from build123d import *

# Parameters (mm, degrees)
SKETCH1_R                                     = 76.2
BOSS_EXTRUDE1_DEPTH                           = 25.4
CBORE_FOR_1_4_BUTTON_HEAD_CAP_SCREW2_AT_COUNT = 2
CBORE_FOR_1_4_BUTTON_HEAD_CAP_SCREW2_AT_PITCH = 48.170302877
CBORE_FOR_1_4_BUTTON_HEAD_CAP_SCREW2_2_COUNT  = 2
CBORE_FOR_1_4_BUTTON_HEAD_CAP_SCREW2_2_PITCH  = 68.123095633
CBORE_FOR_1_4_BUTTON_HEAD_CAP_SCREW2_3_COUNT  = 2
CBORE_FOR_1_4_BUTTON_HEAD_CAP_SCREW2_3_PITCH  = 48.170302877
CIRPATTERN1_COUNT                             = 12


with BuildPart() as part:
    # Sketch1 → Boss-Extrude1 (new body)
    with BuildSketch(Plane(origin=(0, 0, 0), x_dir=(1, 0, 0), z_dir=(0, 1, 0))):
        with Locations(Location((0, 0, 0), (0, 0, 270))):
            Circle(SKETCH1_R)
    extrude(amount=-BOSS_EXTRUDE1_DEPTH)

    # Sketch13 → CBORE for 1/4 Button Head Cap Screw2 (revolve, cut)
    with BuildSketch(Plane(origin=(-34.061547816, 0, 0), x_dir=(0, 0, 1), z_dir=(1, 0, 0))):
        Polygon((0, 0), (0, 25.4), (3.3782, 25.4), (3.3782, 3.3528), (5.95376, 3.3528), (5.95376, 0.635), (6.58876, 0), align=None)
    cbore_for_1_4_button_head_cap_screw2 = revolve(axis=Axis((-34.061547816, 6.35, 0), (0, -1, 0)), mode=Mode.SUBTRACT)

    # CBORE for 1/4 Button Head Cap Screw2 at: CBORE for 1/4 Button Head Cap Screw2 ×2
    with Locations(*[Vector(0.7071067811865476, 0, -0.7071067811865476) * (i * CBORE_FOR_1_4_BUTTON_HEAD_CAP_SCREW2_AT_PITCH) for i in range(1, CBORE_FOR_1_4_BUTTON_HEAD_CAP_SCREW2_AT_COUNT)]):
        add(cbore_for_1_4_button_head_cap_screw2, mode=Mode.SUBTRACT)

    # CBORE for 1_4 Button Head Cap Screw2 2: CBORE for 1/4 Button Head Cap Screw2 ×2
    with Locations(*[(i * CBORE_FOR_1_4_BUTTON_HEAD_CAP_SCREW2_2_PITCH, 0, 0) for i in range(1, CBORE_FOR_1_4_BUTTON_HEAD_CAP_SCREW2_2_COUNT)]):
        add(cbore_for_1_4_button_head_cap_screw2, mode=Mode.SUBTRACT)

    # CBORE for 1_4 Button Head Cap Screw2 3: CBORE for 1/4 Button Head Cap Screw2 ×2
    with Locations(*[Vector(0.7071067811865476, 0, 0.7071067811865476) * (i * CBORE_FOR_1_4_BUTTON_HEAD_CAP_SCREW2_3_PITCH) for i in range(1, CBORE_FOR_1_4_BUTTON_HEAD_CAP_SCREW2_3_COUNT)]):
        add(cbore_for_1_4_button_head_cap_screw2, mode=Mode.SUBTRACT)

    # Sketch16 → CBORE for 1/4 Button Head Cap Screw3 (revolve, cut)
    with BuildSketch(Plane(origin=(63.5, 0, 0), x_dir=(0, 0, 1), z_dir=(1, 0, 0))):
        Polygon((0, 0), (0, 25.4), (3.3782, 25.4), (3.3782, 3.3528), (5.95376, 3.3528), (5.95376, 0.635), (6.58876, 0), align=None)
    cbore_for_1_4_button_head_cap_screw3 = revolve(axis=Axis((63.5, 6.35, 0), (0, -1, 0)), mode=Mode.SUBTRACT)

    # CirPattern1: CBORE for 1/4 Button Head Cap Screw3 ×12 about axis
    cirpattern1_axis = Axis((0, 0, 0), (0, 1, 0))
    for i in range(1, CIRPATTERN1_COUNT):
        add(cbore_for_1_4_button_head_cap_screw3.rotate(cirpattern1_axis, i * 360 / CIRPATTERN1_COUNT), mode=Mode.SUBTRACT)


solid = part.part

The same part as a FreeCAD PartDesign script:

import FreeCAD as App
import Part
import Sketcher
Q = App.Units.Quantity

doc = App.newDocument("Part")
body = doc.addObject("PartDesign::Body", "Body")

# Sketch on XZ plane
sketch1 = body.newObject("Sketcher::SketchObject", "Sketch")
sketch1.AttachmentSupport = (doc.getObject("XZ_Plane"), [""])
sketch1.MapMode = "FlatFace"
sketch1.addGeometry(Part.Circle(App.Vector(0, 0, 0), App.Vector(0, 0, 1), 76), False)
sketch1.addConstraint([
    Sketcher.Constraint("Coincident", 0, 3, -1, 1),
    Sketcher.Constraint("Diameter", 0, Q("6 in")),
])
pad1 = body.newObject("PartDesign::Pad", "Pad")
pad1.Profile = sketch1
pad1.Length = Q("1 in")

# Sketch on YZ plane
sketch2 = body.newObject("Sketcher::SketchObject", "Sketch001")
sketch2.AttachmentSupport = (doc.getObject("YZ_Plane"), [""])
sketch2.MapMode = "FlatFace"
sketch2.AttachmentOffset = App.Placement(App.Vector(0, 0, -34.061548), App.Rotation())
sketch2.addGeometry([
    Part.LineSegment(App.Vector(-25.4, 0, 0), App.Vector(0, 0, 0)),  # 0
    Part.LineSegment(App.Vector(0, 0, 0), App.Vector(0, 6.6, 0)),  # 1
    Part.LineSegment(App.Vector(0, 6.6, 0), App.Vector(-0.6, 6, 0)),  # 2
    Part.LineSegment(App.Vector(-0.6, 6, 0), App.Vector(-3.4, 6, 0)),  # 3
    Part.LineSegment(App.Vector(-3.4, 6, 0), App.Vector(-3.4, 3.4, 0)),  # 4
    Part.LineSegment(App.Vector(-3.4, 3.4, 0), App.Vector(-25.4, 3.4, 0)),  # 5
    Part.LineSegment(App.Vector(-25.4, 3.4, 0), App.Vector(-25.4, 0, 0)),  # 6
], False)
sketch2.addConstraint([
    Sketcher.Constraint("Coincident", 0, 2, 1, 1),
    Sketcher.Constraint("Coincident", 1, 2, 2, 1),
    Sketcher.Constraint("Coincident", 2, 2, 3, 1),
    Sketcher.Constraint("Coincident", 3, 2, 4, 1),
    Sketcher.Constraint("Coincident", 4, 2, 5, 1),
    Sketcher.Constraint("Coincident", 5, 2, 6, 1),
    Sketcher.Constraint("Coincident", 6, 2, 0, 1),
    Sketcher.Constraint("Horizontal", 0),
    Sketcher.Constraint("Vertical", 1),
    Sketcher.Constraint("Horizontal", 3),
    Sketcher.Constraint("Vertical", 4),
    Sketcher.Constraint("Horizontal", 5),
    Sketcher.Constraint("Vertical", 6),
    Sketcher.Constraint("Coincident", 0, 2, -1, 1),
    Sketcher.Constraint("DistanceX", 0, 1, 0, 2, Q("1 in")),
    Sketcher.Constraint("Angle", 2, Q("-135 deg")),
    Sketcher.Constraint("DistanceX", 3, 2, 3, 1, Q("0.107 in")),
    Sketcher.Constraint("DistanceX", 5, 2, 5, 1, Q("0.868 in")),
    Sketcher.Constraint("DistanceY", 6, 2, 6, 1, Q("0.133 in")),
    Sketcher.Constraint("DistanceY", 1, 1, 1, 2, Q("0.2594 in")),
])
groove = body.newObject("PartDesign::Groove", "Groove")
groove.Profile = sketch2
groove.ReferenceAxis = (sketch2, ["H_Axis"])
groove.Angle = 360
doc.recompute()

datumline = body.newObject("PartDesign::Line", "DatumLine")
datumline.Placement = App.Placement(App.Vector(0, 0, 0), App.Rotation(App.Vector(0, 0, 1), App.Vector(0.707106781, 0, -0.707106781)))
linearpattern = body.newObject("PartDesign::LinearPattern", "LinearPattern")
linearpattern.Originals = [groove]
linearpattern.Direction = (datumline, [""])
linearpattern.Mode = "offset"
linearpattern.Offset = 48.170303
linearpattern.Occurrences = 2
body.Tip = linearpattern
doc.recompute()

linearpattern2 = body.newObject("PartDesign::LinearPattern", "LinearPattern001")
linearpattern2.Originals = [groove]
linearpattern2.Direction = (doc.getObject("X_Axis"), [""])
linearpattern2.Mode = "offset"
linearpattern2.Offset = 68.123096
linearpattern2.Occurrences = 2
body.Tip = linearpattern2
doc.recompute()

datumline2 = body.newObject("PartDesign::Line", "DatumLine001")
datumline2.Placement = App.Placement(App.Vector(0, 0, 0), App.Rotation(App.Vector(0, 0, 1), App.Vector(0.707106781, 0, 0.707106781)))
linearpattern3 = body.newObject("PartDesign::LinearPattern", "LinearPattern002")
linearpattern3.Originals = [groove]
linearpattern3.Direction = (datumline2, [""])
linearpattern3.Mode = "offset"
linearpattern3.Offset = 48.170303
linearpattern3.Occurrences = 2
body.Tip = linearpattern3

# Sketch on YZ plane
sketch3 = body.newObject("Sketcher::SketchObject", "Sketch002")
sketch3.AttachmentSupport = (doc.getObject("YZ_Plane"), [""])
sketch3.MapMode = "FlatFace"
sketch3.AttachmentOffset = App.Placement(App.Vector(0, 0, 2.5 * 25.4), App.Rotation())
sketch3.addGeometry([
    Part.LineSegment(App.Vector(-25.4, 0, 0), App.Vector(0, 0, 0)),  # 0
    Part.LineSegment(App.Vector(0, 0, 0), App.Vector(0, 6.6, 0)),  # 1
    Part.LineSegment(App.Vector(0, 6.6, 0), App.Vector(-0.6, 6, 0)),  # 2
    Part.LineSegment(App.Vector(-0.6, 6, 0), App.Vector(-3.4, 6, 0)),  # 3
    Part.LineSegment(App.Vector(-3.4, 6, 0), App.Vector(-3.4, 3.4, 0)),  # 4
    Part.LineSegment(App.Vector(-3.4, 3.4, 0), App.Vector(-25.4, 3.4, 0)),  # 5
    Part.LineSegment(App.Vector(-25.4, 3.4, 0), App.Vector(-25.4, 0, 0)),  # 6
], False)
sketch3.addConstraint([
    Sketcher.Constraint("Coincident", 0, 2, 1, 1),
    Sketcher.Constraint("Coincident", 1, 2, 2, 1),
    Sketcher.Constraint("Coincident", 2, 2, 3, 1),
    Sketcher.Constraint("Coincident", 3, 2, 4, 1),
    Sketcher.Constraint("Coincident", 4, 2, 5, 1),
    Sketcher.Constraint("Coincident", 5, 2, 6, 1),
    Sketcher.Constraint("Coincident", 6, 2, 0, 1),
    Sketcher.Constraint("Horizontal", 0),
    Sketcher.Constraint("Vertical", 1),
    Sketcher.Constraint("Horizontal", 3),
    Sketcher.Constraint("Vertical", 4),
    Sketcher.Constraint("Horizontal", 5),
    Sketcher.Constraint("Vertical", 6),
    Sketcher.Constraint("Coincident", 0, 2, -1, 1),
    Sketcher.Constraint("DistanceX", 0, 1, 0, 2, Q("1 in")),
    Sketcher.Constraint("Angle", 2, Q("-135 deg")),
    Sketcher.Constraint("DistanceX", 3, 2, 3, 1, Q("0.107 in")),
    Sketcher.Constraint("DistanceX", 5, 2, 5, 1, Q("0.868 in")),
    Sketcher.Constraint("DistanceY", 6, 2, 6, 1, Q("0.133 in")),
    Sketcher.Constraint("DistanceY", 1, 1, 1, 2, Q("0.2594 in")),
])
groove2 = body.newObject("PartDesign::Groove", "Groove001")
groove2.Profile = sketch3
groove2.ReferenceAxis = (sketch3, ["H_Axis"])
groove2.Angle = 360
doc.recompute()

polarpattern = body.newObject("PartDesign::PolarPattern", "PolarPattern")
polarpattern.Originals = [groove2]
polarpattern.Axis = (doc.getObject("Y_Axis"), [""])
polarpattern.Angle = 360
polarpattern.Occurrences = 12
body.Tip = polarpattern

doc.recompute()
